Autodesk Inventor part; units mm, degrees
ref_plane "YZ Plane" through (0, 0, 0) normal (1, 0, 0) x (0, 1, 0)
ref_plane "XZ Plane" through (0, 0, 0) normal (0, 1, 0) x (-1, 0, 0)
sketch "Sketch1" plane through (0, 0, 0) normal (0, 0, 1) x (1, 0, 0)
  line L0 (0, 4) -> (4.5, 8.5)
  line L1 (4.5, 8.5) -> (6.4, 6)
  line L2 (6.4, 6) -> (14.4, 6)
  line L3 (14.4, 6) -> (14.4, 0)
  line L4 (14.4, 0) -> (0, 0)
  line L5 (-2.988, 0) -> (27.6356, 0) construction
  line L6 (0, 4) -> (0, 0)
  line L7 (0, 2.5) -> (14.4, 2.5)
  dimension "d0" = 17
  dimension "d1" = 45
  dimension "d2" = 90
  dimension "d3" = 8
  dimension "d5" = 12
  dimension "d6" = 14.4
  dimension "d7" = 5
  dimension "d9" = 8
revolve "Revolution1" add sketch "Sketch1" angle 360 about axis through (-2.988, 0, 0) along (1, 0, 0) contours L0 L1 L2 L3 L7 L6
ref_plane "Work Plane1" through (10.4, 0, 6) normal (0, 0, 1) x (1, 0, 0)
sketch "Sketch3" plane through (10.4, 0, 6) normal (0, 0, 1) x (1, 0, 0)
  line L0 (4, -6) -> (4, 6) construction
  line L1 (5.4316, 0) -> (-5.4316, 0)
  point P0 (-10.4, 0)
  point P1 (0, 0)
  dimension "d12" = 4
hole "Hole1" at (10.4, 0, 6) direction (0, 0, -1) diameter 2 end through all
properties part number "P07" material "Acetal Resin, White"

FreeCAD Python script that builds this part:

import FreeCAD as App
import Part
import Sketcher
Q = App.Units.Quantity

doc = App.newDocument("Part")
body = doc.addObject("PartDesign::Body", "Body")

# Sketch on XY plane
sketch1 = body.newObject("Sketcher::SketchObject", "Sketch")
sketch1.AttachmentSupport = (doc.getObject("XY_Plane"), [""])
sketch1.MapMode = "FlatFace"
sketch1.addGeometry([
    Part.LineSegment(App.Vector(4.5, 8.5, 0), App.Vector(0, 4, 0)),  # 0
    Part.LineSegment(App.Vector(0, 4, 0), App.Vector(0, 2.5, 0)),  # 1
    Part.LineSegment(App.Vector(0, 2.5, 0), App.Vector(14.4, 2.5, 0)),  # 2
    Part.LineSegment(App.Vector(14.4, 2.5, 0), App.Vector(14.4, 6, 0)),  # 3
    Part.LineSegment(App.Vector(14.4, 6, 0), App.Vector(6.4, 6, 0)),  # 4
    Part.LineSegment(App.Vector(6.4, 6, 0), App.Vector(4.5, 8.5, 0)),  # 5
], False)
sketch1.addConstraint([
    Sketcher.Constraint("Coincident", 0, 2, 1, 1),
    Sketcher.Constraint("Coincident", 1, 2, 2, 1),
    Sketcher.Constraint("Coincident", 2, 2, 3, 1),
    Sketcher.Constraint("Coincident", 3, 2, 4, 1),
    Sketcher.Constraint("Coincident", 4, 2, 5, 1),
    Sketcher.Constraint("Coincident", 5, 2, 0, 1),
    Sketcher.Constraint("Vertical", 1),
    Sketcher.Constraint("Horizontal", 2),
    Sketcher.Constraint("Vertical", 3),
    Sketcher.Constraint("Horizontal", 4),
    Sketcher.Constraint("PointOnObject", 0, 2, -2),
    Sketcher.Constraint("DistanceX", 4, 2, 4, 1, Q("8 mm")),
    Sketcher.Constraint("DistanceX", 2, 1, 2, 2, Q("14.4 mm")),
    Sketcher.Constraint("Angle", 0, Q("-135 deg")),
    Sketcher.Constraint("DistanceY", 1, 2, 1, 1, Q("1.5 mm")),
    Sketcher.Constraint("DistanceY", 3, 1, 3, 2, Q("3.5 mm")),
    Sketcher.Constraint("DistanceY", -1, 1, 0, 2, Q("4 mm")),
    Sketcher.Constraint("DistanceY", 1, 2, 5, 2, Q("6 mm")),
])
revolution = body.newObject("PartDesign::Revolution", "Revolution")
revolution.Profile = sketch1
revolution.ReferenceAxis = (sketch1, ["H_Axis"])
revolution.Angle = 360

# Sketch on XY plane
sketch2 = body.newObject("Sketcher::SketchObject", "Sketch001")
sketch2.AttachmentSupport = (doc.getObject("XY_Plane"), [""])
sketch2.MapMode = "FlatFace"
sketch2.AttachmentOffset = App.Placement(App.Vector(0, 0, 6), App.Rotation())
sketch2.addGeometry(Part.Circle(App.Vector(10.4, 0, 0), App.Vector(0, 0, 1), 1), False)
sketch2.addConstraint([
    Sketcher.Constraint("PointOnObject", 0, 3, -1),
    Sketcher.Constraint("Diameter", 0, Q("2 mm")),
    Sketcher.Constraint("DistanceX", -1, 1, 0, 3, Q("10.4 mm")),
])
doc.recompute()
hole = body.newObject("PartDesign::Hole", "Hole")
hole.Profile = sketch2
hole.ThreadType = "None"
hole.Diameter = 2
hole.DepthType = "ThroughAll"

doc.recompute()
